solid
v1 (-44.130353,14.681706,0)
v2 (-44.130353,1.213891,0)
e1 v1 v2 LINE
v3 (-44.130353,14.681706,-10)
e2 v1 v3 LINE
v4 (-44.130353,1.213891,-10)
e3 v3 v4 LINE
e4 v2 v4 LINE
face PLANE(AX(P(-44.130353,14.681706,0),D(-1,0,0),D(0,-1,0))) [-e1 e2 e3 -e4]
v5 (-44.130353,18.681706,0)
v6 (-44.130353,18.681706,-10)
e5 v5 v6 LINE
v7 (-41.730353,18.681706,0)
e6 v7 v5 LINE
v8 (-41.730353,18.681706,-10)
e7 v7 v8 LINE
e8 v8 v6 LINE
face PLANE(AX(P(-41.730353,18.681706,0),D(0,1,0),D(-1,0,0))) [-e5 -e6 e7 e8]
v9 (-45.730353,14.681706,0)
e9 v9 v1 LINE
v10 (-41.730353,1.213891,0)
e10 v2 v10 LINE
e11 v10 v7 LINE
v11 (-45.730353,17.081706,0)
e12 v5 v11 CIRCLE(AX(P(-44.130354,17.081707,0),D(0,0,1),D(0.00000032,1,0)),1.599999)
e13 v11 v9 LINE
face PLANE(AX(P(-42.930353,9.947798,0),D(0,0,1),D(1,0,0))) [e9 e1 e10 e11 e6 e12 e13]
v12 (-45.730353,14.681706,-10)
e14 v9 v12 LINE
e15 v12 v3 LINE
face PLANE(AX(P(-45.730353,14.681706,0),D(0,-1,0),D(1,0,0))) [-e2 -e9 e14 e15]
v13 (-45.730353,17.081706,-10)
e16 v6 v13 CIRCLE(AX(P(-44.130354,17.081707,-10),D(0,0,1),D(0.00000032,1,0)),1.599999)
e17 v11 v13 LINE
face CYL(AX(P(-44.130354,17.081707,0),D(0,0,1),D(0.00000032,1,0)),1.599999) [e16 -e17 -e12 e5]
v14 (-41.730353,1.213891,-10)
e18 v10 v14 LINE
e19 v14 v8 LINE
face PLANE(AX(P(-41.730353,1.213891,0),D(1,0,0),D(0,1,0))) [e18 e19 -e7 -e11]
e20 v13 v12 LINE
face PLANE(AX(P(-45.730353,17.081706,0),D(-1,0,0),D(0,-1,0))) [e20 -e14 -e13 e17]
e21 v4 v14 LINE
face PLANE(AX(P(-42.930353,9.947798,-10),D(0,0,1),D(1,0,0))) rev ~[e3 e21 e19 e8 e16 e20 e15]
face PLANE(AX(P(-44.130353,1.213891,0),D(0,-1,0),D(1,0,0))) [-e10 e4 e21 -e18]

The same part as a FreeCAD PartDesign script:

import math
import FreeCAD as App
import Part
import Sketcher
from FreeCAD import Vector

doc = App.newDocument("Part")
body = doc.addObject("PartDesign::Body", "Body")

# Sketch on XY plane
sketch1 = doc.addObject("Sketcher::SketchObject", "Sketch")
body.addObject(sketch1)
sketch1.AttachmentSupport = (doc.XY_Plane, [""])
sketch1.MapMode = "FlatFace"
sketch1.addGeometry([
    Part.LineSegment(Vector(-44.1, 1.2, 0), Vector(-41.7, 1.2, 0)),  # 0
    Part.LineSegment(Vector(-41.7, 1.2, 0), Vector(-41.7, 18.7, 0)),  # 1
    Part.LineSegment(Vector(-41.7, 18.7, 0), Vector(-44.1, 18.7, 0)),  # 2
    Part.ArcOfCircle(Part.Circle(Vector(-44.1, 17.1, 0), Vector(0, 0, 1), 1.6), math.radians(90), math.radians(180)),  # 3
    Part.LineSegment(Vector(-45.7, 17.1, 0), Vector(-45.7, 14.7, 0)),  # 4
    Part.LineSegment(Vector(-45.7, 14.7, 0), Vector(-44.1, 14.7, 0)),  # 5
    Part.LineSegment(Vector(-44.1, 14.7, 0), Vector(-44.1, 1.2, 0)),  # 6
], False)
sketch1.addConstraint([
    Sketcher.Constraint("Coincident", 0, 2, 1, 1),
    Sketcher.Constraint("Coincident", 1, 2, 2, 1),
    Sketcher.Constraint("Tangent", 2, 2, 3, 1),
    Sketcher.Constraint("Tangent", 3, 2, 4, 1),
    Sketcher.Constraint("Coincident", 4, 2, 5, 1),
    Sketcher.Constraint("Coincident", 5, 2, 6, 1),
    Sketcher.Constraint("Coincident", 6, 2, 0, 1),
    Sketcher.Constraint("Horizontal", 0),
    Sketcher.Constraint("Vertical", 1),
    Sketcher.Constraint("Horizontal", 2),
    Sketcher.Constraint("Vertical", 4),
    Sketcher.Constraint("Horizontal", 5),
    Sketcher.Constraint("Vertical", 6),
    Sketcher.Constraint("Vertical", 2, 2, 5, 2),
    Sketcher.Constraint("Equal", 2, 4),
    Sketcher.Constraint("Radius", 3, 1.599999),
    Sketcher.Constraint("DistanceX", 0, 1, 0, 2, 2.4),
    Sketcher.Constraint("DistanceY", 1, 1, 1, 2, 17.467815),
    Sketcher.Constraint("DistanceY", -1, 1, 0, 2, 1.213891),
    Sketcher.Constraint("DistanceX", 3, 3, -1, 1, 44.130354),
])
pad1 = doc.addObject("PartDesign::Pad", "Pad")
body.addObject(pad1)
pad1.Profile = sketch1
pad1.Length = 10
pad1.Reversed = True

doc.recompute()
